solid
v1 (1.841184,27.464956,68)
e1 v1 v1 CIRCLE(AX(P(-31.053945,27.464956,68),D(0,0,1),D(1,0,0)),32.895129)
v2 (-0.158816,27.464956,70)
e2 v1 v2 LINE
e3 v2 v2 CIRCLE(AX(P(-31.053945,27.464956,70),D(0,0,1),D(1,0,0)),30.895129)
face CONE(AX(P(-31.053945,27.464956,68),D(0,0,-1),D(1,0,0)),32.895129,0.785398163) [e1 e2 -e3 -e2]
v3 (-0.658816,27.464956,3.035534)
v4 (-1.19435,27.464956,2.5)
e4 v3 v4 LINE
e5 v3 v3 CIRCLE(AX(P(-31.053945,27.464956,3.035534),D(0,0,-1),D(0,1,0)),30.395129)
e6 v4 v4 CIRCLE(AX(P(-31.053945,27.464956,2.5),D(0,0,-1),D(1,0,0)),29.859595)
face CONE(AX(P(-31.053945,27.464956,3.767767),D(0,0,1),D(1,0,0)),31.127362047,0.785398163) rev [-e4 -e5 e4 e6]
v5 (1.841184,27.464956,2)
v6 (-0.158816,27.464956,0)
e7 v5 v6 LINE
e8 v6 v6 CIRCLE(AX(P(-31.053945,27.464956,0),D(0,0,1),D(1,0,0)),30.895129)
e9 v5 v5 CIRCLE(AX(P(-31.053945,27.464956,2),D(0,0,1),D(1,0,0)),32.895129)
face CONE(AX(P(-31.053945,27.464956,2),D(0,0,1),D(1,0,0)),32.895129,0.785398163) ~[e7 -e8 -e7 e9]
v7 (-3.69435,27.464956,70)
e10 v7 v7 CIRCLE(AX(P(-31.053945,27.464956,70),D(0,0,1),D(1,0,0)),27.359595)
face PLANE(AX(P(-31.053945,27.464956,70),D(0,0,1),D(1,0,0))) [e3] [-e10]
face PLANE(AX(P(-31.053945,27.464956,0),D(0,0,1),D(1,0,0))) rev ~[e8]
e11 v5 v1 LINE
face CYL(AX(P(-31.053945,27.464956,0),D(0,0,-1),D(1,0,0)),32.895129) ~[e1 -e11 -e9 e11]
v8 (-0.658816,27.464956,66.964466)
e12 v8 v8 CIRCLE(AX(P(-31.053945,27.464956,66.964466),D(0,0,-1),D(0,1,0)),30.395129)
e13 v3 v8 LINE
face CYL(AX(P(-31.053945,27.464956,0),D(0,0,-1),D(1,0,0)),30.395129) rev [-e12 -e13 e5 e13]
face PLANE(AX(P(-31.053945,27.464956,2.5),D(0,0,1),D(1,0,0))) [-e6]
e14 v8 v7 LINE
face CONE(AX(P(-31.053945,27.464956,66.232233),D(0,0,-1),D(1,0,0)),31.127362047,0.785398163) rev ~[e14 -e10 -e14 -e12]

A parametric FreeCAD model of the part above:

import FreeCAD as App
import Part
import Sketcher

V = App.Vector


def edges_at(feature, points):
    """Names of the edges that pass closest to the given points."""
    edges = feature.Shape.Edges
    near = lambda p: min(range(len(edges)), key=lambda i: edges[i].distToShape(Part.Vertex(*p))[0])
    return sorted({f"Edge{near(p) + 1}" for p in points})


def faces_at(feature, points):
    """Names of the faces that lie closest to the given points."""
    faces = feature.Shape.Faces
    near = lambda p: min(range(len(faces)), key=lambda i: faces[i].distToShape(Part.Vertex(*p))[0])
    return sorted({f"Face{near(p) + 1}" for p in points})

doc = App.newDocument("Part")
body = doc.addObject("PartDesign::Body", "Body")

sketch1 = doc.addObject("Sketcher::SketchObject", "Sketch")
body.addObject(sketch1)
sketch1.AttachmentSupport = (doc.XY_Plane, [""])
sketch1.MapMode = "FlatFace"
sketch1.addGeometry(Part.Circle(V(-31.053945, 27.464956, 0), V(0, 0, 1), 32.895129), False)
sketch1.addConstraint(Sketcher.Constraint("Diameter", 0, 65.790258))
sketch1.addConstraint(Sketcher.Constraint("DistanceX", 0, 3, -1, 1, 31.053945))
sketch1.addConstraint(Sketcher.Constraint("DistanceY", -1, 1, 0, 3, 27.464956))
pad1 = doc.addObject("PartDesign::Pad", "Pad")
body.addObject(pad1)
pad1.Profile = sketch1
pad1.Length = 70
doc.recompute()

chamfer = doc.addObject("PartDesign::Chamfer", "Chamfer")
body.addObject(chamfer)
chamfer.Base = (pad1, edges_at(pad1, [(-63.949, 27.465, 70)]))
chamfer.Size = 2
doc.recompute()

chamfer2 = doc.addObject("PartDesign::Chamfer", "Chamfer001")
body.addObject(chamfer2)
chamfer2.Base = (chamfer, edges_at(chamfer, [(-63.949, 27.465, 0)]))
chamfer2.Size = 2
doc.recompute()

thickness = doc.addObject("PartDesign::Thickness", "Thickness")
body.addObject(thickness)
thickness.Base = (chamfer2, faces_at(chamfer2, [(-31.054, 27.465, 70)]))
thickness.Value = 2.5
thickness.Reversed = True
thickness.Join = "Arc"

doc.recompute()
